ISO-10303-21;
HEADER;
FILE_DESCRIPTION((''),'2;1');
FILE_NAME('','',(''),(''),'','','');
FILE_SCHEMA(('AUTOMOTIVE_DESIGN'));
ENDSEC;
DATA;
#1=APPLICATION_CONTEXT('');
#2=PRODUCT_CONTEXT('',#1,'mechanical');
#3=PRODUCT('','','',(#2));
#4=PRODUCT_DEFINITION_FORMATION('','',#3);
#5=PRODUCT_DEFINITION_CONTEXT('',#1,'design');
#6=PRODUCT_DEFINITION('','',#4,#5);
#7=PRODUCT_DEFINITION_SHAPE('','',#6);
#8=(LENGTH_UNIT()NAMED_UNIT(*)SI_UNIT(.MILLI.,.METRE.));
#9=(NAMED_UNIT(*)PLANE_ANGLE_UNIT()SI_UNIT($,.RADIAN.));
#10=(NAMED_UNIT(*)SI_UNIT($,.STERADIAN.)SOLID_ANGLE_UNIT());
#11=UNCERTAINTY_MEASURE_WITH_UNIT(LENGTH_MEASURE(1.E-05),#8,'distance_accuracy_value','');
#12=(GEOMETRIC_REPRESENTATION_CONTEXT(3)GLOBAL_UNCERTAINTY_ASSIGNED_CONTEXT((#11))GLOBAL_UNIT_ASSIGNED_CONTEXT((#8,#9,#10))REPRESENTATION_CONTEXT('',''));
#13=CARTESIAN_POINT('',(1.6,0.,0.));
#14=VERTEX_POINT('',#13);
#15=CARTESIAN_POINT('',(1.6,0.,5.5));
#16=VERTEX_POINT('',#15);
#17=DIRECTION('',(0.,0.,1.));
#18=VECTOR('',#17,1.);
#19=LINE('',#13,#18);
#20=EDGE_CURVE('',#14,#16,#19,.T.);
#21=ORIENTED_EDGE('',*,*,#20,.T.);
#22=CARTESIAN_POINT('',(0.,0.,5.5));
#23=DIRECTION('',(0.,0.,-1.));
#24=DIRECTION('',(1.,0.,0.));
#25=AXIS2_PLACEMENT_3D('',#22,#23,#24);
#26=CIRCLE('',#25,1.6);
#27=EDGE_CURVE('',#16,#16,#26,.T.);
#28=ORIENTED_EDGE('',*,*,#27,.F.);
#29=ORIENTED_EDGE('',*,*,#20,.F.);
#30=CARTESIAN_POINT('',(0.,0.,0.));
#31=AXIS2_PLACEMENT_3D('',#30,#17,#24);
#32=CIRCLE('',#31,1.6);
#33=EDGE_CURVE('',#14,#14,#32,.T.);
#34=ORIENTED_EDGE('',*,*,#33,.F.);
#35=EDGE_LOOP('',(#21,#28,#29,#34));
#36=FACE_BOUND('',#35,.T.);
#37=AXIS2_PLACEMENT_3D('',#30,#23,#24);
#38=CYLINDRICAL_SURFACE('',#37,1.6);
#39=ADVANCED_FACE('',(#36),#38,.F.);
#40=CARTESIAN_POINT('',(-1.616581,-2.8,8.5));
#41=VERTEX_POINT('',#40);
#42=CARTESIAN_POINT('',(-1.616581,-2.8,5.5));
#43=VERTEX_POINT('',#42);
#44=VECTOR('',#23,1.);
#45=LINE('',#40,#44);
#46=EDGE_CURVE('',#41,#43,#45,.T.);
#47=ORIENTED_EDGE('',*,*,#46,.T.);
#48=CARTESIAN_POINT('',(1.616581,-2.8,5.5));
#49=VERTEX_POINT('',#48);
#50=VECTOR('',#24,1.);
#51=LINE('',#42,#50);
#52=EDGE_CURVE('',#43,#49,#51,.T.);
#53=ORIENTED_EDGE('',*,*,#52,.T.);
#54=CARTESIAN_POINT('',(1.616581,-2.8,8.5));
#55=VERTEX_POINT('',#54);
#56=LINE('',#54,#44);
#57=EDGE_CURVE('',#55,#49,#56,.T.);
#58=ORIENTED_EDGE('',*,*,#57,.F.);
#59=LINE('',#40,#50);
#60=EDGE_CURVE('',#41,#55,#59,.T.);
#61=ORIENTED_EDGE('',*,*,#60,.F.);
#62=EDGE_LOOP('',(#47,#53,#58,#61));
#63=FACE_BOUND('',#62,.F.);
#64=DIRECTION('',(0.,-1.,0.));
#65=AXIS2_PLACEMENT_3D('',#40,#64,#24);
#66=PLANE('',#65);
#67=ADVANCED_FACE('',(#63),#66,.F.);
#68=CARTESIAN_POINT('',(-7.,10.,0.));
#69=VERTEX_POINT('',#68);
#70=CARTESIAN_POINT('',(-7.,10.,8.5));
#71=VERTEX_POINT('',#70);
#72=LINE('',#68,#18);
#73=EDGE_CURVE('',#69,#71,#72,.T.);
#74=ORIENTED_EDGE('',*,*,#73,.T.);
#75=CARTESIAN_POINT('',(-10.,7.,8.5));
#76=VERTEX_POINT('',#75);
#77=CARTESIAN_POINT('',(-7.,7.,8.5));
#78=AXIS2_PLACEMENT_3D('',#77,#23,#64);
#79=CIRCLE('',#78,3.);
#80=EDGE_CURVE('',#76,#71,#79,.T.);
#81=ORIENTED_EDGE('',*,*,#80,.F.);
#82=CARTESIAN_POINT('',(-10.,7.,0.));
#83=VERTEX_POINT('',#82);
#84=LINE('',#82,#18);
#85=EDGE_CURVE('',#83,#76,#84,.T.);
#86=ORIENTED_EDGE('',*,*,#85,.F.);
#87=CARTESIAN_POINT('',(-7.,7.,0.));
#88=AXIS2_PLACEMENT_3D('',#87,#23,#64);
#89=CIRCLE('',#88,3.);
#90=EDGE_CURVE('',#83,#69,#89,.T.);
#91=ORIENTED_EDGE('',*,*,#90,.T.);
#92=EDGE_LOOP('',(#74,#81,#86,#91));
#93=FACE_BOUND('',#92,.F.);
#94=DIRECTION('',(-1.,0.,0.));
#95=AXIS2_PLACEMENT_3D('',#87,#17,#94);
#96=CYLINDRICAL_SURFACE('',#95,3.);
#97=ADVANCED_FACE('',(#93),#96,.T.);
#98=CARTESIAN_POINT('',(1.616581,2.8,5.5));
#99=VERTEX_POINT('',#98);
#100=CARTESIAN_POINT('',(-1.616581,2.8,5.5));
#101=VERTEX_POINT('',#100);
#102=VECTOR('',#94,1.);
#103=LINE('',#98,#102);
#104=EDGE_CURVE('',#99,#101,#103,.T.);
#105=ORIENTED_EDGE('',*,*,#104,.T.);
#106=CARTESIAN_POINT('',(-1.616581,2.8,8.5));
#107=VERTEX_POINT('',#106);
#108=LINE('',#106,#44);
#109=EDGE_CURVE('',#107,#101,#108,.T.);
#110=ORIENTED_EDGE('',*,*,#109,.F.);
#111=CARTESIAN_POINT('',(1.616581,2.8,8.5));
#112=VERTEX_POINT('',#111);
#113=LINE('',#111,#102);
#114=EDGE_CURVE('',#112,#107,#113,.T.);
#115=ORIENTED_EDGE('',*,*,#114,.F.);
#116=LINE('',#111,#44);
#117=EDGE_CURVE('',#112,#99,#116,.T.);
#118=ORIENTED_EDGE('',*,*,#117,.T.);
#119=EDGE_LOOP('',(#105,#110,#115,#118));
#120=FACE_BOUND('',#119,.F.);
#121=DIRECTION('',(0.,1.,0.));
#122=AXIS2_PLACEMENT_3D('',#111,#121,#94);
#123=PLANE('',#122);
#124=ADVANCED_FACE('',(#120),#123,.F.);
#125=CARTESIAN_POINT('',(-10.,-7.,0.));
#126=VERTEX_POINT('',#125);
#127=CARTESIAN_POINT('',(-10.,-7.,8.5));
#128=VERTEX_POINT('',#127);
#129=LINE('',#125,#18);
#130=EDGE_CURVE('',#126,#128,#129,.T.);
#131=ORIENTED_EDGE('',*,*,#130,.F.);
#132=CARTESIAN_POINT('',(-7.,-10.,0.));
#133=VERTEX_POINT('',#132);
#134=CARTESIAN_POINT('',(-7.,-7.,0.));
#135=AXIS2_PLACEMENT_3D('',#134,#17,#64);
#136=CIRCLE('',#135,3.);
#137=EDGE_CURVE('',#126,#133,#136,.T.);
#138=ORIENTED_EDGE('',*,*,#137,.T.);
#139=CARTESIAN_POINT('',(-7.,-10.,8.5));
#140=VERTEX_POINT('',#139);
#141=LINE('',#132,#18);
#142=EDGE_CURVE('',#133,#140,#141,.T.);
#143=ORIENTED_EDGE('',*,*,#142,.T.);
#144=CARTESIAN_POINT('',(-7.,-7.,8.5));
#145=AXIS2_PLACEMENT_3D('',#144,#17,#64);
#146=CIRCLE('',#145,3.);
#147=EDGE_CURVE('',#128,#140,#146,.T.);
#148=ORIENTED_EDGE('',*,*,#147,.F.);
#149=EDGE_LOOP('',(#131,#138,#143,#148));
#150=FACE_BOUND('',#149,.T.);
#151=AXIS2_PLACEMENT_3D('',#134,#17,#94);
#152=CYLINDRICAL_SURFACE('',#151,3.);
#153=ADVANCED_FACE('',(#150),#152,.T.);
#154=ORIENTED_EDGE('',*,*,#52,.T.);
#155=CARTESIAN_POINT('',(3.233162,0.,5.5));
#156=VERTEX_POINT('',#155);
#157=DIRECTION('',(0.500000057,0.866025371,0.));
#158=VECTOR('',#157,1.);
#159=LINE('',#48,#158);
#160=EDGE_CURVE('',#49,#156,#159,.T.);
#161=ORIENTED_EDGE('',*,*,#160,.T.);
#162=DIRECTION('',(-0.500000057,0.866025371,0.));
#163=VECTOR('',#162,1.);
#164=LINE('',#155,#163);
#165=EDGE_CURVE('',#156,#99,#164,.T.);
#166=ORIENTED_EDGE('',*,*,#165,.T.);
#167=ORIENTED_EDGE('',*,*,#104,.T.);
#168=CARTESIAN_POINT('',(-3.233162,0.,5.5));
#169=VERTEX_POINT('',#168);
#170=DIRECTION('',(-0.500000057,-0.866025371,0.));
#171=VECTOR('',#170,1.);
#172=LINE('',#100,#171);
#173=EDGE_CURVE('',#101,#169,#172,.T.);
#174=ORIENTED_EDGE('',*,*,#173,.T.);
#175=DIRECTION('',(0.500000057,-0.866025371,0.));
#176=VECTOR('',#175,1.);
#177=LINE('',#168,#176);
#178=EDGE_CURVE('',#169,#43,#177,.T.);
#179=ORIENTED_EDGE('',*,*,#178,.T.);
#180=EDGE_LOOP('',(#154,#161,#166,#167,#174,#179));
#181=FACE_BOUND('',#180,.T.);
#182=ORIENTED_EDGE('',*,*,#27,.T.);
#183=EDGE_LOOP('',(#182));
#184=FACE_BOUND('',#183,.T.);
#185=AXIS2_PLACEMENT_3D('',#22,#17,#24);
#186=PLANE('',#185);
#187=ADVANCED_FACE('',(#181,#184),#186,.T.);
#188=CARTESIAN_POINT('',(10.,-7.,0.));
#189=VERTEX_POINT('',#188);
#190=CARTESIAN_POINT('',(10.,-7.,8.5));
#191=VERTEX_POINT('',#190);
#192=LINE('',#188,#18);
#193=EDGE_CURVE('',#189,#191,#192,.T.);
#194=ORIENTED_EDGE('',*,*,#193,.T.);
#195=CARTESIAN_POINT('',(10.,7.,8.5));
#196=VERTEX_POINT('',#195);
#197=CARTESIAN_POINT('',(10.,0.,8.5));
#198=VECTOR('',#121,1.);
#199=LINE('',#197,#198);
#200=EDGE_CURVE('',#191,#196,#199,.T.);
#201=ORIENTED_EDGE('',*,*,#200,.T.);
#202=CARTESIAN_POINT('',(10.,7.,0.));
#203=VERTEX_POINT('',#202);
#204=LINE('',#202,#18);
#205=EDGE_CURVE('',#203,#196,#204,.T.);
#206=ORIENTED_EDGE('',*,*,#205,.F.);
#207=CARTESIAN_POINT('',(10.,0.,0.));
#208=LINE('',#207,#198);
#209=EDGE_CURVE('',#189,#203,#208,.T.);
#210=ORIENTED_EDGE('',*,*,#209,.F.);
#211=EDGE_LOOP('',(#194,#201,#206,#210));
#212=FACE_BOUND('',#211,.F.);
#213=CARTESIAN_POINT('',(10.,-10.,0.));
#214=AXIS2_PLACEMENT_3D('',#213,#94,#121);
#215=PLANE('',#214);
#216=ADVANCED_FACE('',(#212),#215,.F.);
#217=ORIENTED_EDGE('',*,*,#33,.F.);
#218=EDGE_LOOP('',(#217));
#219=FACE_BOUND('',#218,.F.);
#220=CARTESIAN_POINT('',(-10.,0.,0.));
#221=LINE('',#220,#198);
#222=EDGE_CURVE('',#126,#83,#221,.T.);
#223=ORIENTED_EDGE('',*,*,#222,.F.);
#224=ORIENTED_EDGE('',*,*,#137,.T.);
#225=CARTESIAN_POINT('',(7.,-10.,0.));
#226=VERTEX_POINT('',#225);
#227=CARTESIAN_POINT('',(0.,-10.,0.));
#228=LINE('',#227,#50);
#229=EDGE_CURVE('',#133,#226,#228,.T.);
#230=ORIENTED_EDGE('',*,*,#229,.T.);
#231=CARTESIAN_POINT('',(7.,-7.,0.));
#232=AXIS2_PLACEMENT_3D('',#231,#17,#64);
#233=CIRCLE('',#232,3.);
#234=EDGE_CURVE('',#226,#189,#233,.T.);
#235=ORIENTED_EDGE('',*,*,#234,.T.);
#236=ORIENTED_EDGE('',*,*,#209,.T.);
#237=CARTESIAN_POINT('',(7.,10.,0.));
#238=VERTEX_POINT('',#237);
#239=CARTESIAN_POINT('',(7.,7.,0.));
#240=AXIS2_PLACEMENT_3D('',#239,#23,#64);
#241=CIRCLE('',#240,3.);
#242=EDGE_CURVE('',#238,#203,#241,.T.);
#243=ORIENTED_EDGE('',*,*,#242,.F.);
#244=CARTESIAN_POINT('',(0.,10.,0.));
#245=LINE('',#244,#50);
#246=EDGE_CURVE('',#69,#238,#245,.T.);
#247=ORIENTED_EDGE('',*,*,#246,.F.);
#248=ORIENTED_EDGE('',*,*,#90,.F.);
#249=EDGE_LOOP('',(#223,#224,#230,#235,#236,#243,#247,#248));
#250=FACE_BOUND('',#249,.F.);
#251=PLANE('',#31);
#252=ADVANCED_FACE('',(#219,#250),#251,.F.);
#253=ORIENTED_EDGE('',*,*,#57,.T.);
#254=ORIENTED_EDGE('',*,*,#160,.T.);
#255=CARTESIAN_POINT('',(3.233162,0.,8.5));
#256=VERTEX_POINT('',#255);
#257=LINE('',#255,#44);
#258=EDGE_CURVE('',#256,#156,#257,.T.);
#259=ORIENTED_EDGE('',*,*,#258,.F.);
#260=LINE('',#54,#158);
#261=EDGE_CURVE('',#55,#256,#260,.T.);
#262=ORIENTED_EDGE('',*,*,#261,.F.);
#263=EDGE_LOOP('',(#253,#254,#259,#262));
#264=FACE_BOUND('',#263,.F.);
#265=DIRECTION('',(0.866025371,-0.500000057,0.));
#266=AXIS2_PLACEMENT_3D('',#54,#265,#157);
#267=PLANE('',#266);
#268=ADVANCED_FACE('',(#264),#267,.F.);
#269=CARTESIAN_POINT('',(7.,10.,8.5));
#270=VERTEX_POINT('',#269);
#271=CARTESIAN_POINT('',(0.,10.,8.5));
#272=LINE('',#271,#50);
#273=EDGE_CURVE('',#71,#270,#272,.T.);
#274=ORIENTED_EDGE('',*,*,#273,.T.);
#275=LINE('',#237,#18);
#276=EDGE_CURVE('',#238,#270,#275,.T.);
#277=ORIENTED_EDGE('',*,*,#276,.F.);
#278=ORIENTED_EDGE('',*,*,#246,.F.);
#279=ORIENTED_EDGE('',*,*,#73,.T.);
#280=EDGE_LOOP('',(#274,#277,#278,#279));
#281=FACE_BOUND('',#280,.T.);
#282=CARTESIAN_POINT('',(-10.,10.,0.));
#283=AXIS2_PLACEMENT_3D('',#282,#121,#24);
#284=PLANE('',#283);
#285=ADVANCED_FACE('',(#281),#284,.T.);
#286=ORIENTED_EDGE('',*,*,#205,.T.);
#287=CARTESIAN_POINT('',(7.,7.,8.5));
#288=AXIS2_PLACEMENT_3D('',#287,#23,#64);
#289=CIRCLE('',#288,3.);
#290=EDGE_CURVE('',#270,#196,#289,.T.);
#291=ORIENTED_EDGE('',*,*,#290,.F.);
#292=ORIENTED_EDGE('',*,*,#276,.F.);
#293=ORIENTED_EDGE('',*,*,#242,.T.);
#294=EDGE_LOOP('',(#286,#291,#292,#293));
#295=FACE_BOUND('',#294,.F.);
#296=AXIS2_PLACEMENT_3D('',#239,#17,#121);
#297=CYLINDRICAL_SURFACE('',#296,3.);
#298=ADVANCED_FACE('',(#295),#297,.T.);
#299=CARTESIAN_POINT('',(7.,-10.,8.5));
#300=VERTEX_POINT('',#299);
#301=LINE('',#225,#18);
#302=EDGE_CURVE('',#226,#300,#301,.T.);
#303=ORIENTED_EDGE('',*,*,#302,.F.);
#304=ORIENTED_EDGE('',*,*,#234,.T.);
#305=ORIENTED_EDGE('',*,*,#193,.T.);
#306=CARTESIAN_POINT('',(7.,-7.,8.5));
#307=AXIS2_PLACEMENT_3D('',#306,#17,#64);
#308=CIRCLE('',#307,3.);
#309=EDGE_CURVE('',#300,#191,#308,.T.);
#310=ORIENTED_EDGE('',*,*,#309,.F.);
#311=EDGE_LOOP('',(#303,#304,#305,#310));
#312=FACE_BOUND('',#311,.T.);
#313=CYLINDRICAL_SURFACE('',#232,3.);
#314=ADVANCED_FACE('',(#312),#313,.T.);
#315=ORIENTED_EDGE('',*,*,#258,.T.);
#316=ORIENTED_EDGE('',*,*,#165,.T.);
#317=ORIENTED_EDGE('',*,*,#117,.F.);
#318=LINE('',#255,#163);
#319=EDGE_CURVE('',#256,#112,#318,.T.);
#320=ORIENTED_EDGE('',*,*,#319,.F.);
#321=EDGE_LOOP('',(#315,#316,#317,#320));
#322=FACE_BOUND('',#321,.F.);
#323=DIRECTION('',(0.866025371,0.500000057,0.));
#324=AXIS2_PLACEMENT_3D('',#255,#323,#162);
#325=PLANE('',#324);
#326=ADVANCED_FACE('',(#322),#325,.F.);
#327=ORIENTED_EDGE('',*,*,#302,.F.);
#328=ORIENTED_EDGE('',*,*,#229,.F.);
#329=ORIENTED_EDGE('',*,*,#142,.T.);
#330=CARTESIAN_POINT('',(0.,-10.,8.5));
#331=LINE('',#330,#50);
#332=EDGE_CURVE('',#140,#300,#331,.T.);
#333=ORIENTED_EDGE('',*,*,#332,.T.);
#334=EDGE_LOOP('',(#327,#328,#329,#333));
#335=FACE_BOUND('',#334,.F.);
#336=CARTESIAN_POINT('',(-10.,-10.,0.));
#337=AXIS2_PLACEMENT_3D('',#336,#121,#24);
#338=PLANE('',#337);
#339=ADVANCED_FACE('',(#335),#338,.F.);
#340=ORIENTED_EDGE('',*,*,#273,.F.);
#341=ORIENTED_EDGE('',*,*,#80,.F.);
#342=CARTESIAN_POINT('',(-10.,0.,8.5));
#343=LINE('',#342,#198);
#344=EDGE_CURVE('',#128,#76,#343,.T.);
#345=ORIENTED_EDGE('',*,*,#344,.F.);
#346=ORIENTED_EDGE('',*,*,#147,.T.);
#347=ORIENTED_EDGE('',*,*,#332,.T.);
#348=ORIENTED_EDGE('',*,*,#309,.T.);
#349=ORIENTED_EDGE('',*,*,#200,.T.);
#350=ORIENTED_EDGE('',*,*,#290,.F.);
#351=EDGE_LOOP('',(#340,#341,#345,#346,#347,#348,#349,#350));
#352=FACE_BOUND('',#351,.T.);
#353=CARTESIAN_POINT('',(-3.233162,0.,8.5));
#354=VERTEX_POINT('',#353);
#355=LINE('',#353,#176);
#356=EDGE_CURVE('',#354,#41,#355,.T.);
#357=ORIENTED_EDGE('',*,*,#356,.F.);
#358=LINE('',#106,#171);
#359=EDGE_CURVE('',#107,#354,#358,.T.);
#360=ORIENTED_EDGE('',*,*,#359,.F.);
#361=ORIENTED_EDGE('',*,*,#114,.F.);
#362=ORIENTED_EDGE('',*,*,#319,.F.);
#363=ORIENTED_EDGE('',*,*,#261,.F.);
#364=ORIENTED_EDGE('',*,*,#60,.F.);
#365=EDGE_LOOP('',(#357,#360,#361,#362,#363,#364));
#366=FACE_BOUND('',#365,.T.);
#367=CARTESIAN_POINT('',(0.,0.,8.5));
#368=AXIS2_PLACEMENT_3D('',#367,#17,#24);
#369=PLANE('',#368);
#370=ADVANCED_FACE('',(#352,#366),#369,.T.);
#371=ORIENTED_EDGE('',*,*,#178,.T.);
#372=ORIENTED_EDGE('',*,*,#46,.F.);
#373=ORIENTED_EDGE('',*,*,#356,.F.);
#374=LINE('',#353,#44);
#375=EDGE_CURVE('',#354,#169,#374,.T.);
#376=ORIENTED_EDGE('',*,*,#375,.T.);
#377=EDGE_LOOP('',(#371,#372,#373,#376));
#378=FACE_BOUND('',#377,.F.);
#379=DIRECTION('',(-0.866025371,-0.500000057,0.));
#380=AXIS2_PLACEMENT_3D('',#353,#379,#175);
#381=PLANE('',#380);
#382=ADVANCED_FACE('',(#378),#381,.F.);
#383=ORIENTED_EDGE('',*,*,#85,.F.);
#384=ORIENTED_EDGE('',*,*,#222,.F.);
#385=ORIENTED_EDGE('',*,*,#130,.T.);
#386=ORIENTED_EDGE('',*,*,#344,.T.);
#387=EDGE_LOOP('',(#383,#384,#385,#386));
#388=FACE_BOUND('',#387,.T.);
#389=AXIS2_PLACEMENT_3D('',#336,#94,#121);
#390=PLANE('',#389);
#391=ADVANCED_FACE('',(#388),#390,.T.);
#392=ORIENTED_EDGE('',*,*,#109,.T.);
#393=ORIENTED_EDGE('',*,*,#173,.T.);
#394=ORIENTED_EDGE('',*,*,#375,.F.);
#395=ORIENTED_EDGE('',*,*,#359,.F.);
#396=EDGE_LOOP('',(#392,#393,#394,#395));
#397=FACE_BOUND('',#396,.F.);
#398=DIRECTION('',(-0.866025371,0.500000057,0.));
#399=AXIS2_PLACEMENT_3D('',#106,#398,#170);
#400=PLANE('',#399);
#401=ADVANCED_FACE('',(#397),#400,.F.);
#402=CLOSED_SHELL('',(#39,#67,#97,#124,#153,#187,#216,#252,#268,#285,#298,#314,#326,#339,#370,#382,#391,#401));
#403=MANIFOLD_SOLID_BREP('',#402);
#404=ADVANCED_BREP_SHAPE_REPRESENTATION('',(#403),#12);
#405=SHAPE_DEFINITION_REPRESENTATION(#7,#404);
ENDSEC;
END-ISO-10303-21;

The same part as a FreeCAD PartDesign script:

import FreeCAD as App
import Part
import Sketcher
from FreeCAD import Vector
Q = App.Units.Quantity


def edges_at(feature, points):
    """Names of the edges that pass closest to the given points."""
    edges = feature.Shape.Edges
    near = lambda p: min(range(len(edges)), key=lambda i: edges[i].distToShape(Part.Vertex(*p))[0])
    return sorted({f"Edge{near(p) + 1}" for p in points})

doc = App.newDocument("Part")
params = doc.addObject("Spreadsheet::Sheet", "Params")
for row, (alias, value) in enumerate([
    ("sketch1_diameter", "3.2 mm"),
    ("sketch1_width", "20 mm"),
    ("pad1_length", "8.5 mm"),
    ("pocket1_length", "3 mm"),
    ("fillet_radius", "3 mm"),
], start=1):
    params.set(f"A{row}", alias)
    params.set(f"B{row}", "=" + value)
    params.setAlias(f"B{row}", alias)

body = doc.addObject("PartDesign::Body", "Body")

# Sketch on XY plane
sketch1 = body.newObject("Sketcher::SketchObject", "Sketch")
sketch1.AttachmentSupport = (doc.getObject("XY_Plane"), [""])
sketch1.MapMode = "FlatFace"
sketch1.addGeometry(Part.LineSegment(Vector(-10, 10, 0), Vector(-10, -10, 0)), False)
sketch1.addGeometry(Part.LineSegment(Vector(-10, -10, 0), Vector(10, -10, 0)), False)
sketch1.addGeometry(Part.LineSegment(Vector(10, -10, 0), Vector(10, 10, 0)), False)
sketch1.addGeometry(Part.LineSegment(Vector(10, 10, 0), Vector(-10, 10, 0)), False)
sketch1.addGeometry(Part.Circle(Vector(0, 0, 0), Vector(0, 0, 1), 1.6), False)
sketch1.addConstraint(Sketcher.Constraint("Coincident", 0, 2, 1, 1))
sketch1.addConstraint(Sketcher.Constraint("Coincident", 1, 2, 2, 1))
sketch1.addConstraint(Sketcher.Constraint("Coincident", 2, 2, 3, 1))
sketch1.addConstraint(Sketcher.Constraint("Coincident", 3, 2, 0, 1))
sketch1.addConstraint(Sketcher.Constraint("Vertical", 0))
sketch1.addConstraint(Sketcher.Constraint("Horizontal", 1))
sketch1.addConstraint(Sketcher.Constraint("Vertical", 2))
sketch1.addConstraint(Sketcher.Constraint("Horizontal", 3))
sketch1.addConstraint(Sketcher.Constraint("Coincident", 4, 3, -1, 1))
sketch1.addConstraint(Sketcher.Constraint("Symmetric", 0, 2, 2, 2, -1, 1))
sketch1.addConstraint(Sketcher.Constraint("Equal", 3, 0))
sketch1.addConstraint(Sketcher.Constraint("Diameter", 4, Q("3.2 mm")))
sketch1.addConstraint(Sketcher.Constraint("DistanceX", 1, 1, 1, 2, Q("20 mm")))
sketch1.setExpression("Constraints[11]", "Params.sketch1_diameter")
sketch1.setExpression("Constraints[12]", "Params.sketch1_width")
pad1 = body.newObject("PartDesign::Pad", "Pad")
pad1.Profile = sketch1
pad1.setExpression("Length", "Params.pad1_length")

# Sketch on XY plane
sketch2 = body.newObject("Sketcher::SketchObject", "Sketch001")
sketch2.AttachmentSupport = (doc.getObject("XY_Plane"), [""])
sketch2.MapMode = "FlatFace"
sketch2.AttachmentOffset = App.Placement(Vector(0, 0, 8.5), App.Rotation())
sketch2.addGeometry(Part.LineSegment(Vector(1.6, 2.8, 0), Vector(-1.6, 2.8, 0)), False)
sketch2.addGeometry(Part.LineSegment(Vector(-1.6, 2.8, 0), Vector(-3.2, 0, 0)), False)
sketch2.addGeometry(Part.LineSegment(Vector(-3.2, 0, 0), Vector(-1.6, -2.8, 0)), False)
sketch2.addGeometry(Part.LineSegment(Vector(-1.6, -2.8, 0), Vector(1.6, -2.8, 0)), False)
sketch2.addGeometry(Part.LineSegment(Vector(1.6, -2.8, 0), Vector(3.2, 0, 0)), False)
sketch2.addGeometry(Part.LineSegment(Vector(3.2, 0, 0), Vector(1.6, 2.8, 0)), False)
sketch2.addConstraint(Sketcher.Constraint("Coincident", 0, 2, 1, 1))
sketch2.addConstraint(Sketcher.Constraint("Coincident", 1, 2, 2, 1))
sketch2.addConstraint(Sketcher.Constraint("Coincident", 2, 2, 3, 1))
sketch2.addConstraint(Sketcher.Constraint("Coincident", 3, 2, 4, 1))
sketch2.addConstraint(Sketcher.Constraint("Coincident", 4, 2, 5, 1))
sketch2.addConstraint(Sketcher.Constraint("Coincident", 5, 2, 0, 1))
sketch2.addConstraint(Sketcher.Constraint("Horizontal", 0))
sketch2.addConstraint(Sketcher.Constraint("Horizontal", 3))
sketch2.addConstraint(Sketcher.Constraint("Symmetric", 0, 2, 3, 2, -1, 1))
sketch2.addConstraint(Sketcher.Constraint("Symmetric", 1, 2, 4, 2, -1, 1))
sketch2.addConstraint(Sketcher.Constraint("PointOnObject", 1, 2, -1))
sketch2.addConstraint(Sketcher.Constraint("Parallel", 2, 5))
sketch2.addConstraint(Sketcher.Constraint("Vertical", 0, 2, 2, 2))
sketch2.addConstraint(Sketcher.Constraint("Angle", 1, Q("-120.000004 deg")))
sketch2.addConstraint(Sketcher.Constraint("DistanceY", -1, 1, 0, 2, Q("2.8 mm")))
sketch2.addConstraint(Sketcher.Constraint("DistanceX", 0, 2, 0, 1, Q("3.233162 mm")))
pocket1 = body.newObject("PartDesign::Pocket", "Pocket")
pocket1.Profile = sketch2
pocket1.setExpression("Length", "Params.pocket1_length")
doc.recompute()

fillet = body.newObject("PartDesign::Fillet", "Fillet")
fillet.Base = (pocket1, edges_at(pocket1, [
    (10, -10, 4.25),
    (-10, -10, 4.25),
    (-10, 10, 4.25),
    (10, 10, 4.25),
]))
fillet.setExpression("Radius", "Params.fillet_radius")

doc.recompute()
